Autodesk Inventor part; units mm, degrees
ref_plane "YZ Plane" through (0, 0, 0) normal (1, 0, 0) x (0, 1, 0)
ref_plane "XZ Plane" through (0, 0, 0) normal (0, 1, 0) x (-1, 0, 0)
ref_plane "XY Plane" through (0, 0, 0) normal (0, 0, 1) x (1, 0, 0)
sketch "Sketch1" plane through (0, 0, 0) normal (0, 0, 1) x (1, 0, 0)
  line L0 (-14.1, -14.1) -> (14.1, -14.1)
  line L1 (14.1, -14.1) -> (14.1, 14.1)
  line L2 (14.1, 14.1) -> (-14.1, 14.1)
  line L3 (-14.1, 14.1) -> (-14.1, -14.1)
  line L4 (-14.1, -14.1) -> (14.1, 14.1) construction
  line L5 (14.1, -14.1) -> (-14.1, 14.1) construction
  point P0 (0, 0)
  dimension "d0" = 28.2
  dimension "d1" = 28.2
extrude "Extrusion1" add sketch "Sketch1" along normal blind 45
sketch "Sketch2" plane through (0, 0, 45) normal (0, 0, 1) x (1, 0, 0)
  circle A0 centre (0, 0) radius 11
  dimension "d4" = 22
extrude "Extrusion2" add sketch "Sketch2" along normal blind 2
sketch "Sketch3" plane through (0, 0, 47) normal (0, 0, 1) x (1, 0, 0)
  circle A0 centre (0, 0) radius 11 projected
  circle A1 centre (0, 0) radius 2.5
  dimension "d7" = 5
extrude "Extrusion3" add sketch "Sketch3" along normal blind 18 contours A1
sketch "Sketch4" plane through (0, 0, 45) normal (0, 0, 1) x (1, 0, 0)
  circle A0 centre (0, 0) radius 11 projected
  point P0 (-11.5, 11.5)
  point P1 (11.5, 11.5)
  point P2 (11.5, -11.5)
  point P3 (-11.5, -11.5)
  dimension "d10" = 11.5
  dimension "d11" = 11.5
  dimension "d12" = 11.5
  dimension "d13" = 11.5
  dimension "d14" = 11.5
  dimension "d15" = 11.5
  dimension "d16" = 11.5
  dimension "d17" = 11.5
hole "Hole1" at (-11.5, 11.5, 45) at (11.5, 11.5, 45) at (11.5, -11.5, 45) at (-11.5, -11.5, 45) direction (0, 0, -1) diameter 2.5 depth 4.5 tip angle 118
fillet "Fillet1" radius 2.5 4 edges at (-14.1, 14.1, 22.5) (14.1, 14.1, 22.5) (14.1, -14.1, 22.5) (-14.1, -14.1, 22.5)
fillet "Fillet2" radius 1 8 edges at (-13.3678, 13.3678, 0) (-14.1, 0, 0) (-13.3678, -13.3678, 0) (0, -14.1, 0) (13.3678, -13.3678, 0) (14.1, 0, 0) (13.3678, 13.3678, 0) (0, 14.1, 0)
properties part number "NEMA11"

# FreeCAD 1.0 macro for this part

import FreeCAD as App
import Part
import Sketcher
from FreeCAD import Vector


def edges_at(feature, points):
    """Names of the edges that pass closest to the given points."""
    edges = feature.Shape.Edges
    near = lambda p: min(range(len(edges)), key=lambda i: edges[i].distToShape(Part.Vertex(*p))[0])
    return sorted({f"Edge{near(p) + 1}" for p in points})

doc = App.newDocument("Part")
body = doc.addObject("PartDesign::Body", "Body")

# Sketch on XY plane
sketch1 = doc.addObject("Sketcher::SketchObject", "Sketch")
body.addObject(sketch1)
sketch1.AttachmentSupport = (doc.XY_Plane, [""])
sketch1.MapMode = "FlatFace"
sketch1.addGeometry([
    Part.LineSegment(Vector(-14, 14, 0), Vector(-14, -14, 0)),
    Part.LineSegment(Vector(-14, -14, 0), Vector(14, -14, 0)),
    Part.LineSegment(Vector(14, -14, 0), Vector(14, 14, 0)),
    Part.LineSegment(Vector(14, 14, 0), Vector(-14, 14, 0)),
], False)
sketch1.addConstraint([
    Sketcher.Constraint("Coincident", 0, 2, 1, 1),
    Sketcher.Constraint("Coincident", 1, 2, 2, 1),
    Sketcher.Constraint("Coincident", 2, 2, 3, 1),
    Sketcher.Constraint("Coincident", 3, 2, 0, 1),
    Sketcher.Constraint("Vertical", 0),
    Sketcher.Constraint("Horizontal", 1),
    Sketcher.Constraint("Vertical", 2),
    Sketcher.Constraint("Horizontal", 3),
    Sketcher.Constraint("Symmetric", 0, 2, 2, 2, -1, 1),
    Sketcher.Constraint("Equal", 3, 0),
    Sketcher.Constraint("DistanceX", 1, 1, 1, 2, 28.2),
])
pad1 = doc.addObject("PartDesign::Pad", "Pad")
body.addObject(pad1)
pad1.Profile = sketch1
pad1.Length = 45

# Sketch on XY plane
sketch2 = doc.addObject("Sketcher::SketchObject", "Sketch001")
body.addObject(sketch2)
sketch2.AttachmentSupport = (doc.XY_Plane, [""])
sketch2.MapMode = "FlatFace"
sketch2.AttachmentOffset = App.Placement(Vector(0, 0, 45), App.Rotation())
sketch2.addGeometry(Part.Circle(Vector(0, 0, 0), Vector(0, 0, 1), 11), False)
sketch2.addConstraint([
    Sketcher.Constraint("Coincident", 0, 3, -1, 1),
    Sketcher.Constraint("Diameter", 0, 22.0),
])
pad2 = doc.addObject("PartDesign::Pad", "Pad001")
body.addObject(pad2)
pad2.Profile = sketch2
pad2.Length = 2

# Sketch on XY plane
sketch3 = doc.addObject("Sketcher::SketchObject", "Sketch002")
body.addObject(sketch3)
sketch3.AttachmentSupport = (doc.XY_Plane, [""])
sketch3.MapMode = "FlatFace"
sketch3.AttachmentOffset = App.Placement(Vector(0, 0, 47), App.Rotation())
sketch3.addGeometry(Part.Circle(Vector(0, 0, 0), Vector(0, 0, 1), 2.5), False)
sketch3.addConstraint([
    Sketcher.Constraint("Coincident", 0, 3, -1, 1),
    Sketcher.Constraint("Diameter", 0, 5.0),
])
pad3 = doc.addObject("PartDesign::Pad", "Pad002")
body.addObject(pad3)
pad3.Profile = sketch3
pad3.Length = 18

# Sketch on XY plane
sketch4 = doc.addObject("Sketcher::SketchObject", "Sketch003")
body.addObject(sketch4)
sketch4.AttachmentSupport = (doc.XY_Plane, [""])
sketch4.MapMode = "FlatFace"
sketch4.AttachmentOffset = App.Placement(Vector(0, 0, 45), App.Rotation())
sketch4.addGeometry([
    Part.Circle(Vector(-11.5, 11.5, 0), Vector(0, 0, 1), 1.2),
    Part.Circle(Vector(11.5, 11.5, 0), Vector(0, 0, 1), 1.2),
    Part.Circle(Vector(11.5, -11.5, 0), Vector(0, 0, 1), 1.2),
    Part.Circle(Vector(-11.5, -11.5, 0), Vector(0, 0, 1), 1.2),
], False)
sketch4.addConstraint([
    Sketcher.Constraint("Equal", 0, 1),
    Sketcher.Constraint("Equal", 1, 2),
    Sketcher.Constraint("Equal", 2, 3),
    Sketcher.Constraint("Symmetric", 0, 3, 2, 3, -1, 1),
    Sketcher.Constraint("Symmetric", 1, 3, 3, 3, -1, 1),
    Sketcher.Constraint("Symmetric", 0, 3, 1, 3, -2),
    Sketcher.Constraint("Diameter", 0, 2.5),
    Sketcher.Constraint("DistanceX", 0, 3, 1, 3, 23.0),
    Sketcher.Constraint("DistanceY", 2, 3, 1, 3, 23.0),
])
doc.recompute()
hole = doc.addObject("PartDesign::Hole", "Hole")
body.addObject(hole)
hole.Profile = sketch4
hole.ThreadType = "None"
hole.Diameter = 2.5
hole.DepthType = "Dimension"
hole.Depth = 4.5
hole.DrillPoint = "Angled"
hole.DrillPointAngle = 118
doc.recompute()

fillet = doc.addObject("PartDesign::Fillet", "Fillet")
body.addObject(fillet)
fillet.Base = (hole, edges_at(hole, [
    (-14.1, 14.1, 22.5),
    (14.1, 14.1, 22.5),
    (14.1, -14.1, 22.5),
    (-14.1, -14.1, 22.5),
]))
fillet.Radius = 2.5
doc.recompute()

fillet2 = doc.addObject("PartDesign::Fillet", "Fillet001")
body.addObject(fillet2)
fillet2.Base = (fillet, edges_at(fillet, [
    (-13.368, 13.368, 0),
    (-14.1, 0, 0),
    (-13.368, -13.368, 0),
    (0, -14.1, 0),
    (13.368, -13.368, 0),
    (14.1, 0, 0),
    (13.368, 13.368, 0),
    (0, 14.1, 0),
]))
fillet2.Radius = 1

doc.recompute()
